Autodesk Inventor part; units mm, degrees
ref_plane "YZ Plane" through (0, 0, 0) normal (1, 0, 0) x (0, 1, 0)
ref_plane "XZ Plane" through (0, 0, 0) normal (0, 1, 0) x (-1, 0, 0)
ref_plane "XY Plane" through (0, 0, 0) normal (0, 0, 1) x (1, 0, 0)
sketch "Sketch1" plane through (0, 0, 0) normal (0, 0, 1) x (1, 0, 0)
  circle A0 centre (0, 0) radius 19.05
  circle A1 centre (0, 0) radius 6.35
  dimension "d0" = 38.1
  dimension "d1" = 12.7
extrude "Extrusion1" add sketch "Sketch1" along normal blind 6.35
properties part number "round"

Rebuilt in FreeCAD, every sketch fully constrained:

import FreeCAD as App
import Part
import Sketcher
Q = App.Units.Quantity

doc = App.newDocument("Part")
body = doc.addObject("PartDesign::Body", "Body")

# Sketch on XY plane
sketch1 = doc.addObject("Sketcher::SketchObject", "Sketch")
body.addObject(sketch1)
sketch1.AttachmentSupport = (doc.XY_Plane, [""])
sketch1.MapMode = "FlatFace"
sketch1.addGeometry(Part.Circle(App.Vector(0, 0, 0), App.Vector(0, 0, 1), 19), False)
sketch1.addGeometry(Part.Circle(App.Vector(0, 0, 0), App.Vector(0, 0, 1), 6), False)
sketch1.addConstraint(Sketcher.Constraint("Coincident", 0, 3, -1, 1))
sketch1.addConstraint(Sketcher.Constraint("Coincident", 1, 3, -1, 1))
sketch1.addConstraint(Sketcher.Constraint("Diameter", 0, Q("1.5 in")))
sketch1.addConstraint(Sketcher.Constraint("Diameter", 1, Q("0.5 in")))
pad1 = doc.addObject("PartDesign::Pad", "Pad")
body.addObject(pad1)
pad1.Profile = sketch1
pad1.Length = Q("0.25 in")

doc.recompute()
